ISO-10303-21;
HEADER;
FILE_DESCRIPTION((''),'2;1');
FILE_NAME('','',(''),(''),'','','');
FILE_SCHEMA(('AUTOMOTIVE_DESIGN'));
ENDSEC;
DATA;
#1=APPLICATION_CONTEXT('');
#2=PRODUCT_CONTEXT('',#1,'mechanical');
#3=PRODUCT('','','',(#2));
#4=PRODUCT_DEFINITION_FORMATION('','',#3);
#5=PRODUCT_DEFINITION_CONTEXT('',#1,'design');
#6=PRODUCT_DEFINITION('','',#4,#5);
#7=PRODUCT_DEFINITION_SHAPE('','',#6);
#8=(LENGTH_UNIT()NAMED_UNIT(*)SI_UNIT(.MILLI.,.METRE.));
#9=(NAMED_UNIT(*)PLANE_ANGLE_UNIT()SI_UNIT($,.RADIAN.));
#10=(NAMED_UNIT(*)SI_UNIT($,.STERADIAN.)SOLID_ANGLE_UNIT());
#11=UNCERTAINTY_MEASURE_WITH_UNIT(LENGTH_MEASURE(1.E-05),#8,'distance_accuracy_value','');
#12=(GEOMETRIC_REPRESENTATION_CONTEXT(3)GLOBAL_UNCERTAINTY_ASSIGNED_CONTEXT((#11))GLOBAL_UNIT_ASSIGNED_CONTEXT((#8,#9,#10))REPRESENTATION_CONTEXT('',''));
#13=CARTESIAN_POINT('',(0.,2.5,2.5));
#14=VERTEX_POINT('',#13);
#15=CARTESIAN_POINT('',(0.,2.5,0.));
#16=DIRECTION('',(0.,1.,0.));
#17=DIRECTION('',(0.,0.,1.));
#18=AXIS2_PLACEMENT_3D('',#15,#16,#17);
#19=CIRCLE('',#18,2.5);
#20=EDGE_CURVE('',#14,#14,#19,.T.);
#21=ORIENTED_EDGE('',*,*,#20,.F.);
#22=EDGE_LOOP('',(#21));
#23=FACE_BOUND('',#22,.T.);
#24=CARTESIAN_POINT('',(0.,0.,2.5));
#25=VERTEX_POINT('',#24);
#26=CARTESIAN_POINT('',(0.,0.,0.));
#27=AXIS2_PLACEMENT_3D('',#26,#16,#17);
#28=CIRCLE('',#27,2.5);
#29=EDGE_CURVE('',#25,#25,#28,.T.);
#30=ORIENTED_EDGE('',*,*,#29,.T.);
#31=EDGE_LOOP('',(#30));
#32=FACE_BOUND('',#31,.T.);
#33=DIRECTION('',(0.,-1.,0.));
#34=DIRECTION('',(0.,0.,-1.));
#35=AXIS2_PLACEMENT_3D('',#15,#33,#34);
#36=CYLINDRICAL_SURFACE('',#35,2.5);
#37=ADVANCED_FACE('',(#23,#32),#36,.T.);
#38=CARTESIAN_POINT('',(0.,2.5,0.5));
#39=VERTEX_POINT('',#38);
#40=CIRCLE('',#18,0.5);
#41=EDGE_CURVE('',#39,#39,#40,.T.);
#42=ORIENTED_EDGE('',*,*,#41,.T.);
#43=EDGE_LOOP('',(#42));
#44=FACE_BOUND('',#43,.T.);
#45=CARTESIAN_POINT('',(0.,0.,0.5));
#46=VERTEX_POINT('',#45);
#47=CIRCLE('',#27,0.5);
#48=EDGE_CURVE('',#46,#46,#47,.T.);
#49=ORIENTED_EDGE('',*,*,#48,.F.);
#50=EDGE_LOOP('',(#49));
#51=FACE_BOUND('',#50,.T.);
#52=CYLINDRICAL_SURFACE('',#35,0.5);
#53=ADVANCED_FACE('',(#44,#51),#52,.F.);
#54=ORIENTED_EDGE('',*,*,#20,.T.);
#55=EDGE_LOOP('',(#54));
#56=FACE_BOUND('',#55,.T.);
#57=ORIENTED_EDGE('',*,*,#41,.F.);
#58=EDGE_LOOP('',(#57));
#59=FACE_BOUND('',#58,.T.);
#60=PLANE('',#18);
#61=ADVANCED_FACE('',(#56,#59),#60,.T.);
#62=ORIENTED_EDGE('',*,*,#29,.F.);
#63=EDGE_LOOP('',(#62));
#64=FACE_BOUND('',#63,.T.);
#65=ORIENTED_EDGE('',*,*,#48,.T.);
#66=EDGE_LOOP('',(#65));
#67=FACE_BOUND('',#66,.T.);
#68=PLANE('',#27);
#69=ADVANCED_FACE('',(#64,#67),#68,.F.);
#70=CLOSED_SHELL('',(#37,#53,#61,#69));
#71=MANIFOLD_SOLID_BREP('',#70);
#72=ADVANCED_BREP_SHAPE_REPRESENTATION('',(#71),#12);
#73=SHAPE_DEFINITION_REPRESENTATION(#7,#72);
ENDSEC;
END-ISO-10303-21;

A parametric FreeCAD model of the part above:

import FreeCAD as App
import Part
import Sketcher
from FreeCAD import Vector
Q = App.Units.Quantity

doc = App.newDocument("Part")
body = doc.addObject("PartDesign::Body", "Body")

sketch1 = body.newObject("Sketcher::SketchObject", "Sketch")
sketch1.AttachmentSupport = (doc.getObject("XZ_Plane"), [""])
sketch1.MapMode = "FlatFace"
sketch1.addGeometry([
    Part.Circle(Vector(0, 0, 0), Vector(0, 0, 1), 2.5),
    Part.Circle(Vector(0, 0, 0), Vector(0, 0, 1), 0.5),
], False)
sketch1.addConstraint([
    Sketcher.Constraint("Coincident", 0, 3, -1, 1),
    Sketcher.Constraint("Coincident", 1, 3, -1, 1),
    Sketcher.Constraint("Diameter", 0, Q("5 mm")),
    Sketcher.Constraint("Diameter", 1, Q("1 mm")),
])
pad1 = body.newObject("PartDesign::Pad", "Pad")
pad1.Profile = sketch1
pad1.Length = 2.5
pad1.Reversed = True

doc.recompute()
